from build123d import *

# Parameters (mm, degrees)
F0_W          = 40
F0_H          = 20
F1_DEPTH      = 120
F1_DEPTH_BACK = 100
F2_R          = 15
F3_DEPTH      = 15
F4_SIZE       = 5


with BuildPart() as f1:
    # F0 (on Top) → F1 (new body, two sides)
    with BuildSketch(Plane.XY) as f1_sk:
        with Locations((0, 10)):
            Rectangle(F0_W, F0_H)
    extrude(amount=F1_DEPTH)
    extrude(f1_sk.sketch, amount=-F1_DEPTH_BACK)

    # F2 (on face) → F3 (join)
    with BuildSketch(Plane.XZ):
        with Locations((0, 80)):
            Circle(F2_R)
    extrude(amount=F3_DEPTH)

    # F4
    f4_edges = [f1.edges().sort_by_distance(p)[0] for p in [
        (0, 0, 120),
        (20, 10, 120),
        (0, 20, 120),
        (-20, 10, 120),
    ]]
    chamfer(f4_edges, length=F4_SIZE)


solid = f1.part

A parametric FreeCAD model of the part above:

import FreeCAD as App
import Part
import Sketcher
from FreeCAD import Vector
Q = App.Units.Quantity


def edges_at(feature, points):
    """Names of the edges that pass closest to the given points."""
    edges = feature.Shape.Edges
    near = lambda p: min(range(len(edges)), key=lambda i: edges[i].distToShape(Part.Vertex(*p))[0])
    return sorted({f"Edge{near(p) + 1}" for p in points})

doc = App.newDocument("Part")
params = doc.addObject("Spreadsheet::Sheet", "Params")
for row, (alias, value) in enumerate([
    ("sketch1_width", "40 mm"),
    ("sketch1_height", "20 mm"),
    ("pad1_length", "120 mm"),
    ("pad1_length2", "100 mm"),
    ("sketch2_diameter", "30 mm"),
    ("pad2_length", "15 mm"),
    ("chamfer_size", "5 mm"),
], start=1):
    params.set(f"A{row}", alias)
    params.set(f"B{row}", "=" + value)
    params.setAlias(f"B{row}", alias)

body = doc.addObject("PartDesign::Body", "Body")

sketch1 = body.newObject("Sketcher::SketchObject", "Sketch")
sketch1.AttachmentSupport = (doc.getObject("XY_Plane"), [""])
sketch1.MapMode = "FlatFace"
sketch1.addGeometry([
    Part.LineSegment(Vector(-20, 20, 0), Vector(-20, 0, 0)),
    Part.LineSegment(Vector(-20, 0, 0), Vector(20, 0, 0)),
    Part.LineSegment(Vector(20, 0, 0), Vector(20, 20, 0)),
    Part.LineSegment(Vector(20, 20, 0), Vector(-20, 20, 0)),
], False)
sketch1.addConstraint([
    Sketcher.Constraint("Coincident", 0, 2, 1, 1),
    Sketcher.Constraint("Coincident", 1, 2, 2, 1),
    Sketcher.Constraint("Coincident", 2, 2, 3, 1),
    Sketcher.Constraint("Coincident", 3, 2, 0, 1),
    Sketcher.Constraint("Vertical", 0),
    Sketcher.Constraint("Horizontal", 1),
    Sketcher.Constraint("Vertical", 2),
    Sketcher.Constraint("Horizontal", 3),
    Sketcher.Constraint("Symmetric", 0, 2, 1, 2, -1, 1),
    Sketcher.Constraint("DistanceX", 1, 1, 1, 2, Q("40 mm")),
    Sketcher.Constraint("DistanceY", 0, 2, 0, 1, Q("20 mm")),
])
sketch1.setExpression("Constraints[9]", "Params.sketch1_width")
sketch1.setExpression("Constraints[10]", "Params.sketch1_height")
pad1 = body.newObject("PartDesign::Pad", "Pad")
pad1.Profile = sketch1
pad1.Type = "TwoLengths"
pad1.setExpression("Length", "Params.pad1_length")
pad1.setExpression("Length2", "Params.pad1_length2")

sketch2 = body.newObject("Sketcher::SketchObject", "Sketch001")
sketch2.AttachmentSupport = (doc.getObject("XZ_Plane"), [""])
sketch2.MapMode = "FlatFace"
sketch2.addGeometry(Part.Circle(Vector(0, 80, 0), Vector(0, 0, 1), 15), False)
sketch2.addConstraint([
    Sketcher.Constraint("PointOnObject", 0, 3, -2),
    Sketcher.Constraint("Diameter", 0, Q("30 mm")),
    Sketcher.Constraint("DistanceY", -1, 1, 0, 3, Q("80 mm")),
])
sketch2.setExpression("Constraints[1]", "Params.sketch2_diameter")
pad2 = body.newObject("PartDesign::Pad", "Pad001")
pad2.Profile = sketch2
pad2.setExpression("Length", "Params.pad2_length")
doc.recompute()

chamfer = body.newObject("PartDesign::Chamfer", "Chamfer")
chamfer.Base = (pad2, edges_at(pad2, [
    (0, 0, 120),
    (20, 10, 120),
    (0, 20, 120),
    (-20, 10, 120),
]))
chamfer.setExpression("Size", "Params.chamfer_size")

doc.recompute()
